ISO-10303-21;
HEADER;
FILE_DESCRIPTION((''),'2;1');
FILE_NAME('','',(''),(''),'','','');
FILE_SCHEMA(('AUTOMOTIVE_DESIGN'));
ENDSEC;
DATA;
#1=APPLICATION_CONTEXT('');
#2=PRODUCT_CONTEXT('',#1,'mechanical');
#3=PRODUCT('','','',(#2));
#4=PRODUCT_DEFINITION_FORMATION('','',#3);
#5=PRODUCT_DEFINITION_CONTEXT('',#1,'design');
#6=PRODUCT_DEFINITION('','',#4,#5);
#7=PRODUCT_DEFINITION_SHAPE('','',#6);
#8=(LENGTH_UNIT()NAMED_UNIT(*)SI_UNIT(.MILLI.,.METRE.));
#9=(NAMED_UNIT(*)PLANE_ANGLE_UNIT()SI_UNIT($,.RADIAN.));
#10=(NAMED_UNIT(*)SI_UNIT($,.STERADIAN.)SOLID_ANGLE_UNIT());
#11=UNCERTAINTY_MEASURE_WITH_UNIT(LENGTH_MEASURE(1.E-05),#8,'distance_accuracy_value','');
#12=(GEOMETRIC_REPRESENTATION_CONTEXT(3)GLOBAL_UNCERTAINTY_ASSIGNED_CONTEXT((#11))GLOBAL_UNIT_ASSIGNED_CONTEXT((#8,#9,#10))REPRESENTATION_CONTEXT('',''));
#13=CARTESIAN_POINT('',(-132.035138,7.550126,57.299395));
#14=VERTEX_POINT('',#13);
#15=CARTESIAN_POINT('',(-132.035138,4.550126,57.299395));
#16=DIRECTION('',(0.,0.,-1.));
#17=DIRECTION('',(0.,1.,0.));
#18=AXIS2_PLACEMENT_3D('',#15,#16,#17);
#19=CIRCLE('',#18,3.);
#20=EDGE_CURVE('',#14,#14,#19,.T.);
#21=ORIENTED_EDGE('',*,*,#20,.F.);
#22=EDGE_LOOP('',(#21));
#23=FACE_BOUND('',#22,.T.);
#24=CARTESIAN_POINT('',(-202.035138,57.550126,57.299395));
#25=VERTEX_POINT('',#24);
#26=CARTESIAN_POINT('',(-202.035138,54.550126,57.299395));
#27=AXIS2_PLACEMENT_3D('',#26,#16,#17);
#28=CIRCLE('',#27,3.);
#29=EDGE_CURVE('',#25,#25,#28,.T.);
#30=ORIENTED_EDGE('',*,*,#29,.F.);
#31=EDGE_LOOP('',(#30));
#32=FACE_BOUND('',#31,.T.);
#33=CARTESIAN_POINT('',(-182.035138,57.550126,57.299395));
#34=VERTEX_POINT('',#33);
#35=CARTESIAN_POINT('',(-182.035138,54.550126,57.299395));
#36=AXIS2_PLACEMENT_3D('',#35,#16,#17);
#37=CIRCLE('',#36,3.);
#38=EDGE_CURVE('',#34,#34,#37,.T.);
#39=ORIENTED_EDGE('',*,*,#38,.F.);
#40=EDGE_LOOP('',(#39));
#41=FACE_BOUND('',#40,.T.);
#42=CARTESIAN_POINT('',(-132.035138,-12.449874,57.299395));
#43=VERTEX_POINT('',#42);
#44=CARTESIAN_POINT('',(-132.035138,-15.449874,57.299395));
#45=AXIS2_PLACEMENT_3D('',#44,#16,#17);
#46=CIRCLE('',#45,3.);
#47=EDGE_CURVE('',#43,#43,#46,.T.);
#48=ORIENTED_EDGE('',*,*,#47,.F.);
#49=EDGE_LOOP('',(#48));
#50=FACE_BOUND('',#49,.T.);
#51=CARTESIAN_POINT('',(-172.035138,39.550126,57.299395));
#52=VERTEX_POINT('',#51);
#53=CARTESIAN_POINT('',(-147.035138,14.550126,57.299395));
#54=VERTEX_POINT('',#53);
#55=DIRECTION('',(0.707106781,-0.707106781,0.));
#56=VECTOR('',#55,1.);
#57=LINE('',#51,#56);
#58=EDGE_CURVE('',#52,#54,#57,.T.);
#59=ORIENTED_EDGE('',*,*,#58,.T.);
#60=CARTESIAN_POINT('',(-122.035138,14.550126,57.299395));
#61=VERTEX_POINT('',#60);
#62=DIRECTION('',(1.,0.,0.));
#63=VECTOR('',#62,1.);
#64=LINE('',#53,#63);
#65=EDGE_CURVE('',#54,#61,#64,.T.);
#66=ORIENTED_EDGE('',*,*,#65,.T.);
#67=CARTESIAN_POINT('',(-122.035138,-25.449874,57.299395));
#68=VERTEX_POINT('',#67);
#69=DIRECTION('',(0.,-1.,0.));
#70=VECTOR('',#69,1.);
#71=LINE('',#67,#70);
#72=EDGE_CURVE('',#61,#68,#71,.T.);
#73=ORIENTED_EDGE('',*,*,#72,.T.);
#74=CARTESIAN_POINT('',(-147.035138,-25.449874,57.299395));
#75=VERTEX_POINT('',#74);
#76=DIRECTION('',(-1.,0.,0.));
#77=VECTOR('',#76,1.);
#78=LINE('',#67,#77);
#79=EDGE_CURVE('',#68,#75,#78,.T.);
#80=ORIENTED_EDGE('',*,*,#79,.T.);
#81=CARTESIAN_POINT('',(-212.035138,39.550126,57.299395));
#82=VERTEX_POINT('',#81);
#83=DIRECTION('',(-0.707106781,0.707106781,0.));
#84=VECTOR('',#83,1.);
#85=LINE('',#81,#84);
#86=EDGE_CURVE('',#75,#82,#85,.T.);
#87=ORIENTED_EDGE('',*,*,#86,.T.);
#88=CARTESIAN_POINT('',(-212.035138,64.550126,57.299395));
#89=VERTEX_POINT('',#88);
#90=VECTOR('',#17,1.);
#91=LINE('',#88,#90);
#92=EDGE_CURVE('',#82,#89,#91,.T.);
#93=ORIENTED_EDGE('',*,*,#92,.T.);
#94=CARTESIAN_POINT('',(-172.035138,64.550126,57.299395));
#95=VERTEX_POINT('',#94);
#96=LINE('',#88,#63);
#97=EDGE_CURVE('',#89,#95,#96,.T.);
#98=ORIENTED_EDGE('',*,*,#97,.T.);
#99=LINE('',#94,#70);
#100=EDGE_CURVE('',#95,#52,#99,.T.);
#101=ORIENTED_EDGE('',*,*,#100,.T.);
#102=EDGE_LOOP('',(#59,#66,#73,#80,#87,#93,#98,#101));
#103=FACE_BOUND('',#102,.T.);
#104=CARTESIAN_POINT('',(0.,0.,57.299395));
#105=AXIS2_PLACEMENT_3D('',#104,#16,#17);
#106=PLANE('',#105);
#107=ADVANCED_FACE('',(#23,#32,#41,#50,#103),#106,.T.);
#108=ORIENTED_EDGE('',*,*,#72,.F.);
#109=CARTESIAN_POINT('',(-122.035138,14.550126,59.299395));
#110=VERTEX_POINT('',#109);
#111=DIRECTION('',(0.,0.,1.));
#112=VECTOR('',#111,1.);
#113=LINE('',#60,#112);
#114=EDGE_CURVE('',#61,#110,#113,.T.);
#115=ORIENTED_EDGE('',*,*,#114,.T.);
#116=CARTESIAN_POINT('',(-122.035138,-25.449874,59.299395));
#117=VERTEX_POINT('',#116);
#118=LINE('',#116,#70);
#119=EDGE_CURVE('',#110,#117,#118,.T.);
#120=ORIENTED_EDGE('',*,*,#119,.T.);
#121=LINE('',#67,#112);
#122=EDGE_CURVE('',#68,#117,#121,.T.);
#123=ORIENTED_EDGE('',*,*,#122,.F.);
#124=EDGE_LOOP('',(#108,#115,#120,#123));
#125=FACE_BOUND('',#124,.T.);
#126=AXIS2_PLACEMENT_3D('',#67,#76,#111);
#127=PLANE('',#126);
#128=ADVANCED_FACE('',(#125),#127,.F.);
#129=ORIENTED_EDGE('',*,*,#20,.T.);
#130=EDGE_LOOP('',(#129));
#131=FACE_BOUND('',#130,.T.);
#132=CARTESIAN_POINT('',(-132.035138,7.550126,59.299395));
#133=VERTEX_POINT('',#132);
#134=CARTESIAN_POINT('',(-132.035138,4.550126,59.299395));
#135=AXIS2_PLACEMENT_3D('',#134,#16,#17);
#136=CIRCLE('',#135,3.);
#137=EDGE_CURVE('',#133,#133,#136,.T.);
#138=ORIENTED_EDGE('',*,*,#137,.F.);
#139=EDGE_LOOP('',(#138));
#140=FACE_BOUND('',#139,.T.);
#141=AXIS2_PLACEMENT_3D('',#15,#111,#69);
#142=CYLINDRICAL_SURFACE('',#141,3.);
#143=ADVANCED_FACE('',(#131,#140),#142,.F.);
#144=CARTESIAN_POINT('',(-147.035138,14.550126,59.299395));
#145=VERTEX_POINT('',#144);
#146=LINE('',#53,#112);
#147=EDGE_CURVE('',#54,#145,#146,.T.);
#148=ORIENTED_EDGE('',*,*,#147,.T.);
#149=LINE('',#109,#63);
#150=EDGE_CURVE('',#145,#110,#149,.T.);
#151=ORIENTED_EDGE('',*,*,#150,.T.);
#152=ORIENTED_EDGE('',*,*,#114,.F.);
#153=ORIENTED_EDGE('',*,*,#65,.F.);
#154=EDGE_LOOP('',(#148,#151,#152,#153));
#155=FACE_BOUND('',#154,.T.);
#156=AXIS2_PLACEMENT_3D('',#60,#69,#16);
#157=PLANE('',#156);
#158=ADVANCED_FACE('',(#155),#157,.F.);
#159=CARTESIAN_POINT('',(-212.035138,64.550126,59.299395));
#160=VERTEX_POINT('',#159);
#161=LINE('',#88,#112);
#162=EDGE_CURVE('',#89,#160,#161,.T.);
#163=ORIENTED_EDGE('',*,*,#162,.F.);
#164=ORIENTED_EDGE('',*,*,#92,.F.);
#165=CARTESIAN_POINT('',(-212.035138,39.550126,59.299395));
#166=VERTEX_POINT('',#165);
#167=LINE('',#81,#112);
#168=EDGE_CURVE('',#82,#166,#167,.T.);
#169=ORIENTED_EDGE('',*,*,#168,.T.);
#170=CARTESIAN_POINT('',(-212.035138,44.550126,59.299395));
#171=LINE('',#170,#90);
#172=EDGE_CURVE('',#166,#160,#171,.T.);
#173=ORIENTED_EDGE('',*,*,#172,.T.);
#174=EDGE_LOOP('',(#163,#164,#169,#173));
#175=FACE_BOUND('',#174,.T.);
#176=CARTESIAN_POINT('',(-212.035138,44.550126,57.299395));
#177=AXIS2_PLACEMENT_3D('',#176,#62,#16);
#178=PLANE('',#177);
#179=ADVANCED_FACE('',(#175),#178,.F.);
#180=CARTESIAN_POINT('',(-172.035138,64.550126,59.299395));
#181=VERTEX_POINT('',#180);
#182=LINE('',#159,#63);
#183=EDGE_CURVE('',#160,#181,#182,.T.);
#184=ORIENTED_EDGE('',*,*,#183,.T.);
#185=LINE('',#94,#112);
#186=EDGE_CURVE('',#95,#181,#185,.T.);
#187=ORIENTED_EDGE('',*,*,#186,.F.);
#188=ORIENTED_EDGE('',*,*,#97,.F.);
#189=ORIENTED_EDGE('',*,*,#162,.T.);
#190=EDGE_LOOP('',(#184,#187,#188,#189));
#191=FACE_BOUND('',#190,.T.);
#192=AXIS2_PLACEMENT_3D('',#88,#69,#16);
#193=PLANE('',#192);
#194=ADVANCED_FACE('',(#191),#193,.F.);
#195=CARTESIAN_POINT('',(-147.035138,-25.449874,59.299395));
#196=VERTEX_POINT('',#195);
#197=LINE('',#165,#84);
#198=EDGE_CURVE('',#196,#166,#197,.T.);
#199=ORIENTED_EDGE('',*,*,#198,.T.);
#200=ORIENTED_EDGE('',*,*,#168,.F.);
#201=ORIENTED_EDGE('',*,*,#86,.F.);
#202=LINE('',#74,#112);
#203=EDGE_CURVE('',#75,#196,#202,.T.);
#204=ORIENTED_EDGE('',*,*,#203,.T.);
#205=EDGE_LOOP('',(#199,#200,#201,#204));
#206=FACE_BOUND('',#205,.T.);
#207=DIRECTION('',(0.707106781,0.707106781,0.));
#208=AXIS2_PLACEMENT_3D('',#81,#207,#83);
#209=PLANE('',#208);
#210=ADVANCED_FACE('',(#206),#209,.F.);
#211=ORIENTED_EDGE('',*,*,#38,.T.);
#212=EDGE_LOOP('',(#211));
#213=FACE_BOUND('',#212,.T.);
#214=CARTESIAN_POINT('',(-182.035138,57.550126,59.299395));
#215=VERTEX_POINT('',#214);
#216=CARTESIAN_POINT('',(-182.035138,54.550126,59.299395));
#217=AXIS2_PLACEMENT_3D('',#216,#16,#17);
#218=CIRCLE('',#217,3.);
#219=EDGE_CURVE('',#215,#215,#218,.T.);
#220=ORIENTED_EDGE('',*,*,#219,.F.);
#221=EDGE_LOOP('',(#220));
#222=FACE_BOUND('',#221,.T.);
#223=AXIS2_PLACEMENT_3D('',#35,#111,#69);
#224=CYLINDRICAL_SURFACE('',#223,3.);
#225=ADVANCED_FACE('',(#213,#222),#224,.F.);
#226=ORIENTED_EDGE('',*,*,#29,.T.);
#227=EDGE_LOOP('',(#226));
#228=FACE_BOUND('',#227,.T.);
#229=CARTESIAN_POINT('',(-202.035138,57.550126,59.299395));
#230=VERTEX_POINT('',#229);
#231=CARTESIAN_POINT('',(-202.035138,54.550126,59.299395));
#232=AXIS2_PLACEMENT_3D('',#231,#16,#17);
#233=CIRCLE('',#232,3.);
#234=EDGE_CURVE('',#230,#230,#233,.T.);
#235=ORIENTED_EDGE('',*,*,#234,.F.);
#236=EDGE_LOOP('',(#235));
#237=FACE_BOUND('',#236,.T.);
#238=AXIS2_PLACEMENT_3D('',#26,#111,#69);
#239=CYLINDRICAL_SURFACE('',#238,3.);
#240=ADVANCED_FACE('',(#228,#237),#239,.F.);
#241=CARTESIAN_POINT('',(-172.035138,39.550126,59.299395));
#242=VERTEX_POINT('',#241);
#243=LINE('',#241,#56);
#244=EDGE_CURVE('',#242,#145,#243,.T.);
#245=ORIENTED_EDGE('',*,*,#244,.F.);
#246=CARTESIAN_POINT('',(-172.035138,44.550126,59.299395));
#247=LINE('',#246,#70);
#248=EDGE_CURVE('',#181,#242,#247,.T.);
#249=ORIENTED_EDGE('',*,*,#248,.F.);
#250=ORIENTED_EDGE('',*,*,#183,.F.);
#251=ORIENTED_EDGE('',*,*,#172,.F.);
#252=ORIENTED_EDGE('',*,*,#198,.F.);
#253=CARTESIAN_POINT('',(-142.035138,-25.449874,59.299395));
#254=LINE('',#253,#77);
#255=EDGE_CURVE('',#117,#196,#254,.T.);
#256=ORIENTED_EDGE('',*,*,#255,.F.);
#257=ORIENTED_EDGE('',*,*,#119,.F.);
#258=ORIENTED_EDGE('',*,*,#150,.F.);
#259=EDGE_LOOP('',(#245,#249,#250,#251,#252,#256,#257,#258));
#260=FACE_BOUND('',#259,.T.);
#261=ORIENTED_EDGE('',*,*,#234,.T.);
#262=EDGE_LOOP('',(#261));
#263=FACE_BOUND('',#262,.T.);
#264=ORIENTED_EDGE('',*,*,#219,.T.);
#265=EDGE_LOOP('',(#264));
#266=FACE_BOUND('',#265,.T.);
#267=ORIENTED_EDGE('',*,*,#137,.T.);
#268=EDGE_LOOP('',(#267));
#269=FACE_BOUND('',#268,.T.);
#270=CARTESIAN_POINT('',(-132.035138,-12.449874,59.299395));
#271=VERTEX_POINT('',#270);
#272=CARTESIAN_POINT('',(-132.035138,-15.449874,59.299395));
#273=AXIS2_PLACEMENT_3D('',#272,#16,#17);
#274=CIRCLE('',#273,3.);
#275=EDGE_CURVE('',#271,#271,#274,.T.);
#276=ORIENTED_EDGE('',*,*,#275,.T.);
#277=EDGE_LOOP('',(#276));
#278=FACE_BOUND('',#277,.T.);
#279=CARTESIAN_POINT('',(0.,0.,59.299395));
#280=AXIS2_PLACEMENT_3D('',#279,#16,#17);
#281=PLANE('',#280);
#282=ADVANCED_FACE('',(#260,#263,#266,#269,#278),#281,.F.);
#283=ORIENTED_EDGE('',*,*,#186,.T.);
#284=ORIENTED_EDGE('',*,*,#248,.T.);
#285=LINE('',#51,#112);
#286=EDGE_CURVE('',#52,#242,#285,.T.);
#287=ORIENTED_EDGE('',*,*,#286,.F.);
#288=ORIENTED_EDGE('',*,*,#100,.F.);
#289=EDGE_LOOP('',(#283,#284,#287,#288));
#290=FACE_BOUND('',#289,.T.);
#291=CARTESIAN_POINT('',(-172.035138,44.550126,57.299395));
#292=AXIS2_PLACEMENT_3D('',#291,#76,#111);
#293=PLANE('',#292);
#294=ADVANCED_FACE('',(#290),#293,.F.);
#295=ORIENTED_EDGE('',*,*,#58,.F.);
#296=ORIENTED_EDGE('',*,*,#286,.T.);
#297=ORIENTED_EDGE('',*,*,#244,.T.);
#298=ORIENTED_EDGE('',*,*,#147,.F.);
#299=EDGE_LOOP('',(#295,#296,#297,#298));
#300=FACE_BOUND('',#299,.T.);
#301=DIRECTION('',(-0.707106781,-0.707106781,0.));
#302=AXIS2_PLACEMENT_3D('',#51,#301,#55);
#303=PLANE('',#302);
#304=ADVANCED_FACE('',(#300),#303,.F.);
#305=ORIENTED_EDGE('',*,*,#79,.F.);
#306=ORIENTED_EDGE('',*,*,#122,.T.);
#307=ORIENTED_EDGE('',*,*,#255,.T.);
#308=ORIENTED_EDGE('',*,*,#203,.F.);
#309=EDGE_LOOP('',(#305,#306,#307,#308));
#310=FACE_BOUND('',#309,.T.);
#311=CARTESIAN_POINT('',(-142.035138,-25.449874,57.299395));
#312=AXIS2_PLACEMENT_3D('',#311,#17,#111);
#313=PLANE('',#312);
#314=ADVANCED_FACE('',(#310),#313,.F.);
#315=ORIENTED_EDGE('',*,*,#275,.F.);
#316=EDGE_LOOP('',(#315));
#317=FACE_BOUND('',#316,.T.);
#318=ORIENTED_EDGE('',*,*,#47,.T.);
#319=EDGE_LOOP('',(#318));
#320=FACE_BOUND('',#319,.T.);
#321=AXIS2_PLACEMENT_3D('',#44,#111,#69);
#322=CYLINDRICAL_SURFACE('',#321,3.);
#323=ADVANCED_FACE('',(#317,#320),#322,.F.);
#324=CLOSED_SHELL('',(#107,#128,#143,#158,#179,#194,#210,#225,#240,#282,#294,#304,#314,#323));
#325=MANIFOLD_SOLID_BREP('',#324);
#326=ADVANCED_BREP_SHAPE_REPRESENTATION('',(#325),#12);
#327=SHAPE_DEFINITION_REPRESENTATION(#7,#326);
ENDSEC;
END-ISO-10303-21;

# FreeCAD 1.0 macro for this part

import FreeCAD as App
import Part
import Sketcher

V = App.Vector


def add_polygon(sketch, points):
    """Adds a closed chain of lines whose ends are joined by coincident constraints."""
    first, n = sketch.GeometryCount, len(points)
    for a, b in zip(points, points[1:] + points[:1]):
        sketch.addGeometry(Part.LineSegment(App.Vector(*a, 0), App.Vector(*b, 0)), False)
    for i in range(n):
        sketch.addConstraint(Sketcher.Constraint("Coincident", first + i, 2, first + (i + 1) % n, 1))

doc = App.newDocument("Part")
body = doc.addObject("PartDesign::Body", "Body")

# Sketch on XY plane
sketch1 = body.newObject("Sketcher::SketchObject", "Sketch")
sketch1.AttachmentSupport = (doc.getObject("XY_Plane"), [""])
sketch1.MapMode = "FlatFace"
sketch1.AttachmentOffset = App.Placement(V(0, 0, 59.299395), App.Rotation())
add_polygon(sketch1, [(-212.035138, 39.550126), (-212.035138, 64.550126), (-172.035138, 64.550126), (-172.035138, 39.550126), (-147.035138, 14.550126), (-122.035138, 14.550126), (-122.035138, -25.449874), (-147.035138, -25.449874)])  # lines 0-7
sketch1.addGeometry(Part.Circle(V(-132.035138, -15.449874, 0), V(0, 0, 1), 3), False)  # 8
sketch1.addGeometry(Part.Circle(V(-132.035138, 4.550126, 0), V(0, 0, 1), 3), False)  # 9
sketch1.addGeometry(Part.Circle(V(-202.035138, 54.550126, 0), V(0, 0, 1), 3), False)  # 10
sketch1.addGeometry(Part.Circle(V(-182.035138, 54.550126, 0), V(0, 0, 1), 3), False)  # 11
sketch1.addConstraint([
    Sketcher.Constraint("Vertical", 0),
    Sketcher.Constraint("Horizontal", 1),
    Sketcher.Constraint("Vertical", 2),
    Sketcher.Constraint("Horizontal", 4),
    Sketcher.Constraint("Vertical", 5),
    Sketcher.Constraint("Horizontal", 6),
    Sketcher.Constraint("Equal", 8, 9),
    Sketcher.Constraint("Equal", 9, 10),
    Sketcher.Constraint("Equal", 10, 11),
    Sketcher.Constraint("Parallel", 3, 7),
    Sketcher.Constraint("Horizontal", 10, 3, 11, 3),
    Sketcher.Constraint("Horizontal", 2, 2, 7, 2),
    Sketcher.Constraint("Vertical", 8, 3, 9, 3),
    Sketcher.Constraint("Vertical", 3, 2, 6, 2),
    Sketcher.Constraint("Equal", 6, 0),
    Sketcher.Constraint("Equal", 1, 5),
    Sketcher.Constraint("Diameter", 8, 6.0),
    Sketcher.Constraint("DistanceX", 1, 1, 1, 2, 40.0),
    Sketcher.Constraint("DistanceX", 4, 1, 4, 2, 25.0),
    Sketcher.Constraint("DistanceY", 8, 3, 9, 3, 20.0),
    Sketcher.Constraint("DistanceX", 10, 3, 9, 3, 70.0),
    Sketcher.Constraint("DistanceY", 9, 3, 10, 3, 50.0),
    Sketcher.Constraint("DistanceX", 10, 3, 11, 3, 20.0),
    Sketcher.Constraint("DistanceX", 0, 2, 10, 3, 10.0),
    Sketcher.Constraint("DistanceY", 10, 3, 0, 2, 10.0),
    Sketcher.Constraint("DistanceX", 3, 2, 9, 3, 15.0),
    Sketcher.Constraint("DistanceX", 8, 3, -1, 1, 132.035138),
    Sketcher.Constraint("DistanceY", 8, 3, -1, 1, 15.449874),
])
pad1 = body.newObject("PartDesign::Pad", "Pad")
pad1.Profile = sketch1
pad1.Length = 2
pad1.Reversed = True

doc.recompute()
